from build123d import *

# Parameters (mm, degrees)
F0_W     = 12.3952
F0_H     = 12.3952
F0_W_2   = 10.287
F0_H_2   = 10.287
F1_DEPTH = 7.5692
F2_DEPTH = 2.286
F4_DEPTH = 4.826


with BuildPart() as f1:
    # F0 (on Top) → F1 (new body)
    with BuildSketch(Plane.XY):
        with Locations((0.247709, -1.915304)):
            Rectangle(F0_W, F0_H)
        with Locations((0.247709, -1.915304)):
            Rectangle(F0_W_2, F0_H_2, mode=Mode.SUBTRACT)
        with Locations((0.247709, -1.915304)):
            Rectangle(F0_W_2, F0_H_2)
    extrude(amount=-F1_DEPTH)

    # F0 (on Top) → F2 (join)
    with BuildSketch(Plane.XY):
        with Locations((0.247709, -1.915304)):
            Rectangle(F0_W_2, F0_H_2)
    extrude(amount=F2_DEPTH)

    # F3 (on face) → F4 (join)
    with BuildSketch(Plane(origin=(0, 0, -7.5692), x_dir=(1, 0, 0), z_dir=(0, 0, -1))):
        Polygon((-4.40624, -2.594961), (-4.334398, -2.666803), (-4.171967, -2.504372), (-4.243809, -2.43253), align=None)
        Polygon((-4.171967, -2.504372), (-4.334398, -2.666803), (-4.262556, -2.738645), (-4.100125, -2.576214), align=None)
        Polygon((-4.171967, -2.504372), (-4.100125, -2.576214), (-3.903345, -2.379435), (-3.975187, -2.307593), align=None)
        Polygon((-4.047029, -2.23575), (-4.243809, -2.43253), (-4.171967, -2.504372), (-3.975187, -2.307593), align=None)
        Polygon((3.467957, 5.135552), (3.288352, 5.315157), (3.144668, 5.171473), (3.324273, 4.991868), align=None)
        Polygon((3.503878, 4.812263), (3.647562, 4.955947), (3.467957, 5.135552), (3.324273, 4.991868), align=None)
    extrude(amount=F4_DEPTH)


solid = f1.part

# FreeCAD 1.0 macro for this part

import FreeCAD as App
import Part
import Sketcher
Q = App.Units.Quantity

doc = App.newDocument("Part")
body = doc.addObject("PartDesign::Body", "Body")

# Sketch on XY plane
sketch1 = body.newObject("Sketcher::SketchObject", "Sketch")
sketch1.AttachmentSupport = (doc.getObject("XY_Plane"), [""])
sketch1.MapMode = "FlatFace"
sketch1.addGeometry([
    Part.LineSegment(App.Vector(-5.949891, 4.282296, 0), App.Vector(-5.949891, -8.112904, 0)),
    Part.LineSegment(App.Vector(-5.949891, -8.112904, 0), App.Vector(6.445309, -8.112904, 0)),
    Part.LineSegment(App.Vector(6.445309, -8.112904, 0), App.Vector(6.445309, 4.282296, 0)),
    Part.LineSegment(App.Vector(6.445309, 4.282296, 0), App.Vector(-5.949891, 4.282296, 0)),
], False)
sketch1.addConstraint([
    Sketcher.Constraint("Coincident", 0, 2, 1, 1),
    Sketcher.Constraint("Coincident", 1, 2, 2, 1),
    Sketcher.Constraint("Coincident", 2, 2, 3, 1),
    Sketcher.Constraint("Coincident", 3, 2, 0, 1),
    Sketcher.Constraint("Vertical", 0),
    Sketcher.Constraint("Horizontal", 1),
    Sketcher.Constraint("Vertical", 2),
    Sketcher.Constraint("Horizontal", 3),
    Sketcher.Constraint("Equal", 3, 0),
    Sketcher.Constraint("DistanceX", 1, 1, 1, 2, Q("0.488 in")),
    Sketcher.Constraint("DistanceX", 0, 2, -1, 1, 5.949891),
    Sketcher.Constraint("DistanceY", 0, 2, -1, 1, 8.112904),
])
pad1 = body.newObject("PartDesign::Pad", "Pad")
pad1.Profile = sketch1
pad1.Length = Q("0.298 in")
pad1.Reversed = True

# Sketch on XY plane
sketch2 = body.newObject("Sketcher::SketchObject", "Sketch001")
sketch2.AttachmentSupport = (doc.getObject("XY_Plane"), [""])
sketch2.MapMode = "FlatFace"
sketch2.addGeometry([
    Part.LineSegment(App.Vector(-4.895791, 3.228196, 0), App.Vector(-4.895791, -7.058804, 0)),
    Part.LineSegment(App.Vector(-4.895791, -7.058804, 0), App.Vector(5.391209, -7.058804, 0)),
    Part.LineSegment(App.Vector(5.391209, -7.058804, 0), App.Vector(5.391209, 3.228196, 0)),
    Part.LineSegment(App.Vector(5.391209, 3.228196, 0), App.Vector(-4.895791, 3.228196, 0)),
], False)
sketch2.addConstraint([
    Sketcher.Constraint("Coincident", 0, 2, 1, 1),
    Sketcher.Constraint("Coincident", 1, 2, 2, 1),
    Sketcher.Constraint("Coincident", 2, 2, 3, 1),
    Sketcher.Constraint("Coincident", 3, 2, 0, 1),
    Sketcher.Constraint("Vertical", 0),
    Sketcher.Constraint("Horizontal", 1),
    Sketcher.Constraint("Vertical", 2),
    Sketcher.Constraint("Horizontal", 3),
    Sketcher.Constraint("Equal", 3, 0),
    Sketcher.Constraint("DistanceX", 1, 1, 1, 2, Q("0.405 in")),
    Sketcher.Constraint("DistanceX", 0, 2, -1, 1, 4.895791),
    Sketcher.Constraint("DistanceY", 0, 2, -1, 1, 7.058804),
])
pad2 = body.newObject("PartDesign::Pad", "Pad001")
pad2.Profile = sketch2
pad2.Length = Q("0.09 in")

# Sketch on XY plane
sketch3 = body.newObject("Sketcher::SketchObject", "Sketch002")
sketch3.AttachmentSupport = (doc.getObject("XY_Plane"), [""])
sketch3.MapMode = "FlatFace"
sketch3.AttachmentOffset = App.Placement(App.Vector(0, 0, -0.298 * 25.4), App.Rotation())
sketch3.addGeometry([
    Part.LineSegment(App.Vector(-4.40624, 2.594961, 0), App.Vector(-4.262556, 2.738645, 0)),  # 0
    Part.LineSegment(App.Vector(-4.262556, 2.738645, 0), App.Vector(-4.100125, 2.576214, 0)),  # 1
    Part.LineSegment(App.Vector(-4.100125, 2.576214, 0), App.Vector(-3.903345, 2.379435, 0)),  # 2
    Part.LineSegment(App.Vector(-3.903345, 2.379435, 0), App.Vector(-3.975187, 2.307593, 0)),  # 3
    Part.LineSegment(App.Vector(-3.975187, 2.307593, 0), App.Vector(-4.047029, 2.23575, 0)),  # 4
    Part.LineSegment(App.Vector(-4.047029, 2.23575, 0), App.Vector(-4.40624, 2.594961, 0)),  # 5
    Part.LineSegment(App.Vector(3.288352, -5.315157, 0), App.Vector(3.144668, -5.171473, 0)),  # 6
    Part.LineSegment(App.Vector(3.144668, -5.171473, 0), App.Vector(3.503878, -4.812263, 0)),  # 7
    Part.LineSegment(App.Vector(3.503878, -4.812263, 0), App.Vector(3.647562, -4.955947, 0)),  # 8
    Part.LineSegment(App.Vector(3.647562, -4.955947, 0), App.Vector(3.288352, -5.315157, 0)),  # 9
], False)
sketch3.addConstraint([
    Sketcher.Constraint("Coincident", 0, 2, 1, 1),
    Sketcher.Constraint("Coincident", 1, 2, 2, 1),
    Sketcher.Constraint("Coincident", 2, 2, 3, 1),
    Sketcher.Constraint("Coincident", 3, 2, 4, 1),
    Sketcher.Constraint("Coincident", 4, 2, 5, 1),
    Sketcher.Constraint("Coincident", 5, 2, 0, 1),
    Sketcher.Constraint("Coincident", 6, 2, 7, 1),
    Sketcher.Constraint("Coincident", 7, 2, 8, 1),
    Sketcher.Constraint("Coincident", 8, 2, 9, 1),
    Sketcher.Constraint("Coincident", 9, 2, 6, 1),
    Sketcher.Constraint("Perpendicular", 0, 1),
    Sketcher.Constraint("Perpendicular", 1, 3),
    Sketcher.Constraint("Perpendicular", 3, 5),
    Sketcher.Constraint("Parallel", 5, 6),
    Sketcher.Constraint("Perpendicular", 6, 7),
    Sketcher.Constraint("Perpendicular", 7, 8),
    Sketcher.Constraint("Perpendicular", 8, 9),
    Sketcher.Constraint("Equal", 3, 4),
    Sketcher.Constraint("Equal", 0, 6),
    Sketcher.Constraint("Equal", 5, 7),
    Sketcher.Constraint("Angle", 0, Q("45 deg")),
    Sketcher.Constraint("Distance", 5, Q("0.02 in")),
    Sketcher.Constraint("Distance", 0, Q("0.008 in")),
    Sketcher.Constraint("Distance", 3, Q("0.004 in")),
    Sketcher.Constraint("Distance", 2, 0.278288),
    Sketcher.Constraint("DistanceX", 4, 2, -1, 1, 4.047029),
    Sketcher.Constraint("DistanceY", -1, 1, 4, 2, 2.23575),
    Sketcher.Constraint("DistanceX", 0, 2, 1, 2, 0.162431),
    Sketcher.Constraint("DistanceX", 3, 2, 8, 2, 7.622749),
    Sketcher.Constraint("DistanceY", 8, 2, 3, 2, 7.26354),
])
pad3 = body.newObject("PartDesign::Pad", "Pad002")
pad3.Profile = sketch3
pad3.Length = Q("0.19 in")
pad3.Reversed = True

doc.recompute()
